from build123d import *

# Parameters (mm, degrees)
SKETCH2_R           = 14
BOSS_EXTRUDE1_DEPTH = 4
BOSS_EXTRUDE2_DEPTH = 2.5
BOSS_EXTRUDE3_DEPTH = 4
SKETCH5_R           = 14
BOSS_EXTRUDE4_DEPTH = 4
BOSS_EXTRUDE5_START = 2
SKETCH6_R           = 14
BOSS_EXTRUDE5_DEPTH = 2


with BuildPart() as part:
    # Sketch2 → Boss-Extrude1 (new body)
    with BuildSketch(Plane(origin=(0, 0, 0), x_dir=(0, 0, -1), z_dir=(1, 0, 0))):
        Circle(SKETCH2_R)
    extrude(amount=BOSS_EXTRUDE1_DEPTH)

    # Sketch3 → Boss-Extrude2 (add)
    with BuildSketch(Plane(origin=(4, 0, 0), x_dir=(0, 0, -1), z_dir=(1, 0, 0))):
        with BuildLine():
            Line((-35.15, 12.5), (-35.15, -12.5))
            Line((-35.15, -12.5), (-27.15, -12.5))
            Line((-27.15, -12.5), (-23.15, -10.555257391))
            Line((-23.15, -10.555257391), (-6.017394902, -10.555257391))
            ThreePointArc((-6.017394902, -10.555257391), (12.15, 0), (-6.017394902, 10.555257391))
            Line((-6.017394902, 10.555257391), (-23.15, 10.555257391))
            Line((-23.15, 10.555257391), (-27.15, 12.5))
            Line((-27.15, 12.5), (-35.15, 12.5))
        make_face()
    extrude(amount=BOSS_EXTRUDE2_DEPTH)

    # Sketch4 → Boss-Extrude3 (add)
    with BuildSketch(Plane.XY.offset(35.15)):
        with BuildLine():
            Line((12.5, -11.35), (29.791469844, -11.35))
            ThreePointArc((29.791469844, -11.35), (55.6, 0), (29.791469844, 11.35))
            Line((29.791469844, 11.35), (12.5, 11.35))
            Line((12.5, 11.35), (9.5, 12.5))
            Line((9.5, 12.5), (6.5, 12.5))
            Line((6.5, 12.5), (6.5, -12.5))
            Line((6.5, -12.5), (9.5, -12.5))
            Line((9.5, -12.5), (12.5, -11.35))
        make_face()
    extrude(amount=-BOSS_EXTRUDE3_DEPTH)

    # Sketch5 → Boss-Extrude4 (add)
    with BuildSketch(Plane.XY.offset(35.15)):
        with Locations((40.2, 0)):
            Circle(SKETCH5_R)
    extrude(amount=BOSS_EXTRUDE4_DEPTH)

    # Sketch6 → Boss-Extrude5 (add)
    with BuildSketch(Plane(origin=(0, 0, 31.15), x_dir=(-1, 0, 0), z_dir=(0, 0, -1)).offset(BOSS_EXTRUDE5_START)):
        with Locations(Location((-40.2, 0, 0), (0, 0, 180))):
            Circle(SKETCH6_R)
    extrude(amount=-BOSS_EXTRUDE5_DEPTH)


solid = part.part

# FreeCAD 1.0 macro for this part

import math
import FreeCAD as App
import Part
import Sketcher
from FreeCAD import Vector
Q = App.Units.Quantity

doc = App.newDocument("Part")
body = doc.addObject("PartDesign::Body", "Body")

# Sketch on YZ plane
sketch1 = body.newObject("Sketcher::SketchObject", "Sketch")
sketch1.AttachmentSupport = (doc.getObject("YZ_Plane"), [""])
sketch1.MapMode = "FlatFace"
sketch1.addGeometry(Part.Circle(Vector(0, 0, 0), Vector(0, 0, 1), 14), False)
sketch1.addConstraint([
    Sketcher.Constraint("Coincident", 0, 3, -1, 1),
    Sketcher.Constraint("Diameter", 0, Q("28 mm")),
])
pad1 = body.newObject("PartDesign::Pad", "Pad")
pad1.Profile = sketch1
pad1.Length = 4

# Sketch on YZ plane
sketch2 = body.newObject("Sketcher::SketchObject", "Sketch001")
sketch2.AttachmentSupport = (doc.getObject("YZ_Plane"), [""])
sketch2.MapMode = "FlatFace"
sketch2.AttachmentOffset = App.Placement(Vector(0, 0, 4), App.Rotation())
sketch2.addGeometry([
    Part.LineSegment(Vector(12.5, 35.15, 0), Vector(-12.5, 35.15, 0)),  # 0
    Part.LineSegment(Vector(-12.5, 35.15, 0), Vector(-12.5, 27.15, 0)),  # 1
    Part.LineSegment(Vector(-12.5, 27.15, 0), Vector(-10.555257, 23.15, 0)),  # 2
    Part.LineSegment(Vector(-10.555257, 23.15, 0), Vector(-10.555257, 6.017395, 0)),  # 3
    Part.ArcOfCircle(Part.Circle(Vector(0, 0, 0), Vector(0, 0, 1), 12.15), math.radians(150.31318), math.radians(389.68682)),  # 4
    Part.LineSegment(Vector(10.555257, 6.017395, 0), Vector(10.555257, 23.15, 0)),  # 5
    Part.LineSegment(Vector(10.555257, 23.15, 0), Vector(12.5, 27.15, 0)),  # 6
    Part.LineSegment(Vector(12.5, 27.15, 0), Vector(12.5, 35.15, 0)),  # 7
], False)
sketch2.addConstraint([
    Sketcher.Constraint("Coincident", 0, 2, 1, 1),
    Sketcher.Constraint("Coincident", 1, 2, 2, 1),
    Sketcher.Constraint("Coincident", 2, 2, 3, 1),
    Sketcher.Constraint("Coincident", 3, 2, 4, 1),
    Sketcher.Constraint("Coincident", 4, 2, 5, 1),
    Sketcher.Constraint("Coincident", 5, 2, 6, 1),
    Sketcher.Constraint("Coincident", 6, 2, 7, 1),
    Sketcher.Constraint("Coincident", 7, 2, 0, 1),
    Sketcher.Constraint("Horizontal", 0),
    Sketcher.Constraint("Vertical", 1),
    Sketcher.Constraint("Vertical", 3),
    Sketcher.Constraint("Vertical", 5),
    Sketcher.Constraint("Vertical", 7),
    Sketcher.Constraint("Coincident", 4, 3, -1, 1),
    Sketcher.Constraint("Symmetric", 2, 2, 5, 2, -2),
    Sketcher.Constraint("Symmetric", 1, 2, 6, 2, -2),
    Sketcher.Constraint("DistanceX", 0, 2, 0, 1, Q("25 mm")),
    Sketcher.Constraint("DistanceY", 1, 2, 1, 1, Q("8 mm")),
    Sketcher.Constraint("Radius", 4, Q("12.15 mm")),
    Sketcher.Constraint("DistanceY", 2, 2, 1, 2, Q("4 mm")),
    Sketcher.Constraint("DistanceY", -1, 1, 0, 2, Q("35.15 mm")),
    Sketcher.Constraint("Distance", 2, Q("4.447699 mm")),
])
pad2 = body.newObject("PartDesign::Pad", "Pad001")
pad2.Profile = sketch2
pad2.Length = 2.5

# Sketch on XY plane
sketch3 = body.newObject("Sketcher::SketchObject", "Sketch002")
sketch3.AttachmentSupport = (doc.getObject("XY_Plane"), [""])
sketch3.MapMode = "FlatFace"
sketch3.AttachmentOffset = App.Placement(Vector(0, 0, 35.15), App.Rotation())
sketch3.addGeometry([
    Part.LineSegment(Vector(12.5, -11.35, 0), Vector(29.79147, -11.35, 0)),  # 0
    Part.ArcOfCircle(Part.Circle(Vector(40.2, 0, 0), Vector(0, 0, 1), 15.4), math.radians(-132.522414), math.radians(132.522414)),  # 1
    Part.LineSegment(Vector(29.79147, 11.35, 0), Vector(12.5, 11.35, 0)),  # 2
    Part.LineSegment(Vector(12.5, 11.35, 0), Vector(9.5, 12.5, 0)),  # 3
    Part.LineSegment(Vector(9.5, 12.5, 0), Vector(6.5, 12.5, 0)),  # 4
    Part.LineSegment(Vector(6.5, 12.5, 0), Vector(6.5, -12.5, 0)),  # 5
    Part.LineSegment(Vector(6.5, -12.5, 0), Vector(9.5, -12.5, 0)),  # 6
    Part.LineSegment(Vector(9.5, -12.5, 0), Vector(12.5, -11.35, 0)),  # 7
], False)
sketch3.addConstraint([
    Sketcher.Constraint("Coincident", 0, 2, 1, 1),
    Sketcher.Constraint("Coincident", 1, 2, 2, 1),
    Sketcher.Constraint("Coincident", 2, 2, 3, 1),
    Sketcher.Constraint("Coincident", 3, 2, 4, 1),
    Sketcher.Constraint("Coincident", 4, 2, 5, 1),
    Sketcher.Constraint("Coincident", 5, 2, 6, 1),
    Sketcher.Constraint("Coincident", 6, 2, 7, 1),
    Sketcher.Constraint("Coincident", 7, 2, 0, 1),
    Sketcher.Constraint("Horizontal", 0),
    Sketcher.Constraint("Horizontal", 2),
    Sketcher.Constraint("Horizontal", 4),
    Sketcher.Constraint("Vertical", 5),
    Sketcher.Constraint("Horizontal", 6),
    Sketcher.Constraint("Symmetric", 0, 2, 1, 2, -1),
    Sketcher.Constraint("Symmetric", 3, 2, 6, 2, -1),
    Sketcher.Constraint("Vertical", 2, 2, 7, 2),
    Sketcher.Constraint("Radius", 1, Q("15.4 mm")),
    Sketcher.Constraint("DistanceX", 4, 2, 4, 1, Q("3 mm")),
    Sketcher.Constraint("DistanceY", 5, 2, 5, 1, Q("25 mm")),
    Sketcher.Constraint("DistanceX", 3, 2, 2, 2, Q("3 mm")),
    Sketcher.Constraint("DistanceX", -1, 1, 1, 3, Q("40.2 mm")),
    Sketcher.Constraint("DistanceX", -1, 1, 2, 2, Q("12.5 mm")),
    Sketcher.Constraint("DistanceY", 0, 2, 1, 2, Q("22.7 mm")),
])
pad3 = body.newObject("PartDesign::Pad", "Pad002")
pad3.Profile = sketch3
pad3.Length = 4
pad3.Reversed = True

# Sketch on XY plane
sketch4 = body.newObject("Sketcher::SketchObject", "Sketch003")
sketch4.AttachmentSupport = (doc.getObject("XY_Plane"), [""])
sketch4.MapMode = "FlatFace"
sketch4.AttachmentOffset = App.Placement(Vector(0, 0, 35.15), App.Rotation())
sketch4.addGeometry(Part.Circle(Vector(40.2, 0, 0), Vector(0, 0, 1), 14), False)
sketch4.addConstraint([
    Sketcher.Constraint("PointOnObject", 0, 3, -1),
    Sketcher.Constraint("Diameter", 0, Q("28 mm")),
    Sketcher.Constraint("DistanceX", -1, 1, 0, 3, Q("40.2 mm")),
])
pad4 = body.newObject("PartDesign::Pad", "Pad003")
pad4.Profile = sketch4
pad4.Length = 4

# Sketch on XY plane
sketch5 = body.newObject("Sketcher::SketchObject", "Sketch004")
sketch5.AttachmentSupport = (doc.getObject("XY_Plane"), [""])
sketch5.MapMode = "FlatFace"
sketch5.AttachmentOffset = App.Placement(Vector(0, 0, 29.15), App.Rotation())
sketch5.addGeometry(Part.Circle(Vector(40.2, 0, 0), Vector(0, 0, 1), 14), False)
sketch5.addConstraint([
    Sketcher.Constraint("PointOnObject", 0, 3, -1),
    Sketcher.Constraint("Diameter", 0, Q("28 mm")),
    Sketcher.Constraint("DistanceX", -1, 1, 0, 3, Q("40.2 mm")),
])
pad5 = body.newObject("PartDesign::Pad", "Pad004")
pad5.Profile = sketch5
pad5.Length = 2

doc.recompute()
